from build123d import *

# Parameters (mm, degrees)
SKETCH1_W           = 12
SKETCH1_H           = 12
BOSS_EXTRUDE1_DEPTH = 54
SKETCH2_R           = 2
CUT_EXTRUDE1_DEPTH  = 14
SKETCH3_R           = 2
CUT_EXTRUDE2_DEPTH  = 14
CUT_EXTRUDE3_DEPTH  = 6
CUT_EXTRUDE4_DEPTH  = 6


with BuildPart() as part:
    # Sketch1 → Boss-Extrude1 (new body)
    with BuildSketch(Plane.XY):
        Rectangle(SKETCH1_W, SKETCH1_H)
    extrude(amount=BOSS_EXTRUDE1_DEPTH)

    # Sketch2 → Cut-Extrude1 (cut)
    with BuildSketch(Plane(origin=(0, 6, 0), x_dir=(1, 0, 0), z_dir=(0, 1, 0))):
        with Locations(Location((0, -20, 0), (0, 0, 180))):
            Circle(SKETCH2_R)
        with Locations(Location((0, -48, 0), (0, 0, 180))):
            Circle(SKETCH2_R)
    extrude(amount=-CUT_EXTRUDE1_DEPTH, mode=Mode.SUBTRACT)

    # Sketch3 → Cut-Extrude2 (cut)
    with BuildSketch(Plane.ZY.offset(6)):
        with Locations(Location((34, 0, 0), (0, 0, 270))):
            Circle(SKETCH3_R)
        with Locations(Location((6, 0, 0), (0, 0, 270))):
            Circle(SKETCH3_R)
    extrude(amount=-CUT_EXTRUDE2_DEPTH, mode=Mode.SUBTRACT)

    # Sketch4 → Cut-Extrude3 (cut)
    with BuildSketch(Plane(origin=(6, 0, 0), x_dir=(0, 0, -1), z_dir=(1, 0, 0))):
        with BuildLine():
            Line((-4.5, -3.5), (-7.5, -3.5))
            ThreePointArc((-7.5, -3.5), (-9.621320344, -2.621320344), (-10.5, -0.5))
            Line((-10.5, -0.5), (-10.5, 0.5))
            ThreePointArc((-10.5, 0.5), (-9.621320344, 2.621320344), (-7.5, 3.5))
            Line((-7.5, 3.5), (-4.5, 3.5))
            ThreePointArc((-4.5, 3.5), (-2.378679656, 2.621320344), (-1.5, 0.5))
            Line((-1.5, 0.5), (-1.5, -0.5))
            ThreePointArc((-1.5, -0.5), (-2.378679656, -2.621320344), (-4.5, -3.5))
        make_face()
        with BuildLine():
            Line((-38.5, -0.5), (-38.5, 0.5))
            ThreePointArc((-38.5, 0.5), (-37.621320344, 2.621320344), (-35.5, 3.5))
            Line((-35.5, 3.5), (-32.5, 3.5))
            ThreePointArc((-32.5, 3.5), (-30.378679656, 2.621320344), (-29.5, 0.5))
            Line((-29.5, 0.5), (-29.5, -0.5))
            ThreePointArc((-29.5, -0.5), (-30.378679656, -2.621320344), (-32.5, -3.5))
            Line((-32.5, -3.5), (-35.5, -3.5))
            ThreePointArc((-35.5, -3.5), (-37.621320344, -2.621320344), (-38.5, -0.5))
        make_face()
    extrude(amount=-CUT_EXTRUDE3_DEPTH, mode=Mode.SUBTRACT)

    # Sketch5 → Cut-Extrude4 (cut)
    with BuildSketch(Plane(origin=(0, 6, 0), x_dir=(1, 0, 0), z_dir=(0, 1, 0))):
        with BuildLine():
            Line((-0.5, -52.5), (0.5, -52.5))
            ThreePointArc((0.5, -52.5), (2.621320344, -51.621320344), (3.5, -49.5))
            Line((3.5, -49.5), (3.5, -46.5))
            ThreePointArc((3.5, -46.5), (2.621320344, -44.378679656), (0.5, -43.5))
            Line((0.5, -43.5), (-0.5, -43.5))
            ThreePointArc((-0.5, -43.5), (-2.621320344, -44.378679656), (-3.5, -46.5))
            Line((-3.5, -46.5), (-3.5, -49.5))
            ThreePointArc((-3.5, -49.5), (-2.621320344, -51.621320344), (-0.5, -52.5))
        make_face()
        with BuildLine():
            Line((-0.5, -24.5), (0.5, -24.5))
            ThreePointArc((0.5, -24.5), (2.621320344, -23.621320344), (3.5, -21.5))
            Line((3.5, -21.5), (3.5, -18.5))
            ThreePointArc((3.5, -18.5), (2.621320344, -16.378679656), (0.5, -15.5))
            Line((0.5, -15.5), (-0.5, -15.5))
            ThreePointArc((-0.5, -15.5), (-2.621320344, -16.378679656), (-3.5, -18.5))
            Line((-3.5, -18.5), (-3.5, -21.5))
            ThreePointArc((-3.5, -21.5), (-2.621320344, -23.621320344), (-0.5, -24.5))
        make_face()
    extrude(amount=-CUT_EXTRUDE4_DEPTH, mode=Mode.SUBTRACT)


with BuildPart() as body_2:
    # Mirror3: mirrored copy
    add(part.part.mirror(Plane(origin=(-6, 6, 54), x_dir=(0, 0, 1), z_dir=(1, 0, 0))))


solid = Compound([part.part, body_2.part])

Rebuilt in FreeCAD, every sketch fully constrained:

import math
import FreeCAD as App
import Part
import Sketcher
from FreeCAD import Vector
Q = App.Units.Quantity

doc = App.newDocument("Part")
params = doc.addObject("Spreadsheet::Sheet", "Params")
for row, (alias, value) in enumerate([
    ("sketch1_width", "12 mm"),
    ("pad1_length", "54 mm"),
    ("sketch2_diameter", "4 mm"),
    ("pocket1_length", "14 mm"),
    ("sketch3_diameter", "4 mm"),
    ("pocket2_length", "14 mm"),
    ("sketch4_radius", "3 mm"),
    ("sketch4_width", "1 mm"),
    ("sketch4_height", "3 mm"),
    ("pocket3_length", "6 mm"),
    ("sketch5_radius", "3 mm"),
    ("sketch5_width", "1 mm"),
    ("sketch5_height", "3 mm"),
    ("pocket4_length", "6 mm"),
], start=1):
    params.set(f"A{row}", alias)
    params.set(f"B{row}", "=" + value)
    params.setAlias(f"B{row}", alias)

body = doc.addObject("PartDesign::Body", "Body")

sketch1 = body.newObject("Sketcher::SketchObject", "Sketch")
sketch1.AttachmentSupport = (doc.getObject("XY_Plane"), [""])
sketch1.MapMode = "FlatFace"
sketch1.addGeometry([
    Part.LineSegment(Vector(-6, 6, 0), Vector(-6, -6, 0)),
    Part.LineSegment(Vector(-6, -6, 0), Vector(6, -6, 0)),
    Part.LineSegment(Vector(6, -6, 0), Vector(6, 6, 0)),
    Part.LineSegment(Vector(6, 6, 0), Vector(-6, 6, 0)),
], False)
sketch1.addConstraint([
    Sketcher.Constraint("Coincident", 0, 2, 1, 1),
    Sketcher.Constraint("Coincident", 1, 2, 2, 1),
    Sketcher.Constraint("Coincident", 2, 2, 3, 1),
    Sketcher.Constraint("Coincident", 3, 2, 0, 1),
    Sketcher.Constraint("Vertical", 0),
    Sketcher.Constraint("Horizontal", 1),
    Sketcher.Constraint("Vertical", 2),
    Sketcher.Constraint("Horizontal", 3),
    Sketcher.Constraint("Symmetric", 0, 2, 2, 2, -1, 1),
    Sketcher.Constraint("Equal", 3, 0),
    Sketcher.Constraint("DistanceX", 1, 1, 1, 2, Q("12 mm")),
])
sketch1.setExpression("Constraints[10]", "Params.sketch1_width")
pad1 = body.newObject("PartDesign::Pad", "Pad")
pad1.Profile = sketch1
pad1.setExpression("Length", "Params.pad1_length")

sketch2 = body.newObject("Sketcher::SketchObject", "Sketch001")
sketch2.AttachmentSupport = (doc.getObject("XZ_Plane"), [""])
sketch2.MapMode = "FlatFace"
sketch2.AttachmentOffset = App.Placement(Vector(0, 0, -6), App.Rotation())
sketch2.addGeometry([
    Part.Circle(Vector(0, 20, 0), Vector(0, 0, 1), 2),
    Part.Circle(Vector(0, 48, 0), Vector(0, 0, 1), 2),
], False)
sketch2.addConstraint([
    Sketcher.Constraint("Equal", 0, 1),
    Sketcher.Constraint("PointOnObject", 0, 3, -2),
    Sketcher.Constraint("PointOnObject", 1, 3, -2),
    Sketcher.Constraint("Diameter", 0, Q("4 mm")),
    Sketcher.Constraint("DistanceY", -1, 1, 0, 3, Q("20 mm")),
    Sketcher.Constraint("DistanceY", -1, 1, 1, 3, Q("48 mm")),
])
sketch2.setExpression("Constraints[3]", "Params.sketch2_diameter")
pocket1 = body.newObject("PartDesign::Pocket", "Pocket")
pocket1.Profile = sketch2
pocket1.setExpression("Length", "Params.pocket1_length")
pocket1.Reversed = True

sketch3 = body.newObject("Sketcher::SketchObject", "Sketch002")
sketch3.AttachmentSupport = (doc.getObject("YZ_Plane"), [""])
sketch3.MapMode = "FlatFace"
sketch3.AttachmentOffset = App.Placement(Vector(0, 0, -6), App.Rotation())
sketch3.addGeometry([
    Part.Circle(Vector(0, 34, 0), Vector(0, 0, 1), 2),
    Part.Circle(Vector(0, 6, 0), Vector(0, 0, 1), 2),
], False)
sketch3.addConstraint([
    Sketcher.Constraint("Equal", 0, 1),
    Sketcher.Constraint("PointOnObject", 0, 3, -2),
    Sketcher.Constraint("PointOnObject", 1, 3, -2),
    Sketcher.Constraint("Diameter", 0, Q("4 mm")),
    Sketcher.Constraint("DistanceY", -1, 1, 0, 3, Q("34 mm")),
    Sketcher.Constraint("DistanceY", -1, 1, 1, 3, Q("6 mm")),
])
sketch3.setExpression("Constraints[3]", "Params.sketch3_diameter")
pocket2 = body.newObject("PartDesign::Pocket", "Pocket001")
pocket2.Profile = sketch3
pocket2.setExpression("Length", "Params.pocket2_length")
pocket2.Reversed = True

sketch4 = body.newObject("Sketcher::SketchObject", "Sketch003")
sketch4.AttachmentSupport = (doc.getObject("YZ_Plane"), [""])
sketch4.MapMode = "FlatFace"
sketch4.AttachmentOffset = App.Placement(Vector(0, 0, 6), App.Rotation())
sketch4.addGeometry([
    Part.LineSegment(Vector(-3.5, 7.5, 0), Vector(-3.5, 4.5, 0)),
    Part.ArcOfCircle(Part.Circle(Vector(-0.5, 4.5, 0), Vector(0, 0, 1), 3), math.radians(180), math.radians(270)),
    Part.LineSegment(Vector(-0.5, 1.5, 0), Vector(0.5, 1.5, 0)),
    Part.ArcOfCircle(Part.Circle(Vector(0.5, 4.5, 0), Vector(0, 0, 1), 3), math.radians(-90), math.radians(0)),
    Part.LineSegment(Vector(3.5, 4.5, 0), Vector(3.5, 7.5, 0)),
    Part.ArcOfCircle(Part.Circle(Vector(0.5, 7.5, 0), Vector(0, 0, 1), 3), math.radians(0), math.radians(90)),
    Part.LineSegment(Vector(0.5, 10.5, 0), Vector(-0.5, 10.5, 0)),
    Part.ArcOfCircle(Part.Circle(Vector(-0.5, 7.5, 0), Vector(0, 0, 1), 3), math.radians(90), math.radians(180)),
    Part.LineSegment(Vector(0.5, 38.5, 0), Vector(-0.5, 38.5, 0)),
    Part.ArcOfCircle(Part.Circle(Vector(-0.5, 35.5, 0), Vector(0, 0, 1), 3), math.radians(90), math.radians(180)),
    Part.LineSegment(Vector(-3.5, 35.5, 0), Vector(-3.5, 32.5, 0)),
    Part.ArcOfCircle(Part.Circle(Vector(-0.5, 32.5, 0), Vector(0, 0, 1), 3), math.radians(180), math.radians(270)),
    Part.LineSegment(Vector(-0.5, 29.5, 0), Vector(0.5, 29.5, 0)),
    Part.ArcOfCircle(Part.Circle(Vector(0.5, 32.5, 0), Vector(0, 0, 1), 3), math.radians(-90), math.radians(0)),
    Part.LineSegment(Vector(3.5, 32.5, 0), Vector(3.5, 35.5, 0)),
    Part.ArcOfCircle(Part.Circle(Vector(0.5, 35.5, 0), Vector(0, 0, 1), 3), math.radians(0), math.radians(90)),
], False)
sketch4.addConstraint([
    Sketcher.Constraint("Tangent", 0, 2, 1, 1),
    Sketcher.Constraint("Tangent", 1, 2, 2, 1),
    Sketcher.Constraint("Tangent", 2, 2, 3, 1),
    Sketcher.Constraint("Tangent", 3, 2, 4, 1),
    Sketcher.Constraint("Tangent", 4, 2, 5, 1),
    Sketcher.Constraint("Tangent", 5, 2, 6, 1),
    Sketcher.Constraint("Tangent", 6, 2, 7, 1),
    Sketcher.Constraint("Tangent", 7, 2, 0, 1),
    Sketcher.Constraint("Tangent", 8, 2, 9, 1),
    Sketcher.Constraint("Tangent", 9, 2, 10, 1),
    Sketcher.Constraint("Tangent", 10, 2, 11, 1),
    Sketcher.Constraint("Tangent", 11, 2, 12, 1),
    Sketcher.Constraint("Tangent", 12, 2, 13, 1),
    Sketcher.Constraint("Tangent", 13, 2, 14, 1),
    Sketcher.Constraint("Tangent", 14, 2, 15, 1),
    Sketcher.Constraint("Tangent", 15, 2, 8, 1),
    Sketcher.Constraint("Vertical", 0),
    Sketcher.Constraint("Horizontal", 2),
    Sketcher.Constraint("Vertical", 4),
    Sketcher.Constraint("Horizontal", 6),
    Sketcher.Constraint("Horizontal", 8),
    Sketcher.Constraint("Vertical", 10),
    Sketcher.Constraint("Horizontal", 12),
    Sketcher.Constraint("Vertical", 14),
    Sketcher.Constraint("Equal", 1, 3),
    Sketcher.Constraint("Equal", 3, 5),
    Sketcher.Constraint("Equal", 5, 7),
    Sketcher.Constraint("Equal", 7, 9),
    Sketcher.Constraint("Equal", 9, 11),
    Sketcher.Constraint("Equal", 11, 13),
    Sketcher.Constraint("Equal", 13, 15),
    Sketcher.Constraint("Vertical", 7, 3, 9, 3),
    Sketcher.Constraint("Vertical", 5, 3, 13, 3),
    Sketcher.Constraint("Equal", 4, 10),
    Sketcher.Constraint("Radius", 1, Q("3 mm")),
    Sketcher.Constraint("DistanceX", 2, 1, 2, 2, Q("1 mm")),
    Sketcher.Constraint("DistanceY", 0, 2, 0, 1, Q("3 mm")),
    Sketcher.Constraint("DistanceY", 7, 3, 9, 3, Q("28 mm")),
    Sketcher.Constraint("DistanceX", 1, 3, -1, 1, Q("0.5 mm")),
    Sketcher.Constraint("DistanceY", -1, 1, 1, 3, Q("4.5 mm")),
])
sketch4.setExpression("Constraints[34]", "Params.sketch4_radius")
sketch4.setExpression("Constraints[35]", "Params.sketch4_width")
sketch4.setExpression("Constraints[36]", "Params.sketch4_height")
pocket3 = body.newObject("PartDesign::Pocket", "Pocket002")
pocket3.Profile = sketch4
pocket3.setExpression("Length", "Params.pocket3_length")

sketch5 = body.newObject("Sketcher::SketchObject", "Sketch004")
sketch5.AttachmentSupport = (doc.getObject("XZ_Plane"), [""])
sketch5.MapMode = "FlatFace"
sketch5.AttachmentOffset = App.Placement(Vector(0, 0, -6), App.Rotation())
sketch5.addGeometry([
    Part.LineSegment(Vector(-0.5, 52.5, 0), Vector(0.5, 52.5, 0)),
    Part.ArcOfCircle(Part.Circle(Vector(0.5, 49.5, 0), Vector(0, 0, 1), 3), math.radians(0), math.radians(90)),
    Part.LineSegment(Vector(3.5, 49.5, 0), Vector(3.5, 46.5, 0)),
    Part.ArcOfCircle(Part.Circle(Vector(0.5, 46.5, 0), Vector(0, 0, 1), 3), math.radians(-90), math.radians(0)),
    Part.LineSegment(Vector(0.5, 43.5, 0), Vector(-0.5, 43.5, 0)),
    Part.ArcOfCircle(Part.Circle(Vector(-0.5, 46.5, 0), Vector(0, 0, 1), 3), math.radians(180), math.radians(270)),
    Part.LineSegment(Vector(-3.5, 46.5, 0), Vector(-3.5, 49.5, 0)),
    Part.ArcOfCircle(Part.Circle(Vector(-0.5, 49.5, 0), Vector(0, 0, 1), 3), math.radians(90), math.radians(180)),
    Part.LineSegment(Vector(-0.5, 24.5, 0), Vector(0.5, 24.5, 0)),
    Part.ArcOfCircle(Part.Circle(Vector(0.5, 21.5, 0), Vector(0, 0, 1), 3), math.radians(0), math.radians(90)),
    Part.LineSegment(Vector(3.5, 21.5, 0), Vector(3.5, 18.5, 0)),
    Part.ArcOfCircle(Part.Circle(Vector(0.5, 18.5, 0), Vector(0, 0, 1), 3), math.radians(-90), math.radians(0)),
    Part.LineSegment(Vector(0.5, 15.5, 0), Vector(-0.5, 15.5, 0)),
    Part.ArcOfCircle(Part.Circle(Vector(-0.5, 18.5, 0), Vector(0, 0, 1), 3), math.radians(180), math.radians(270)),
    Part.LineSegment(Vector(-3.5, 18.5, 0), Vector(-3.5, 21.5, 0)),
    Part.ArcOfCircle(Part.Circle(Vector(-0.5, 21.5, 0), Vector(0, 0, 1), 3), math.radians(90), math.radians(180)),
], False)
sketch5.addConstraint([
    Sketcher.Constraint("Tangent", 0, 2, 1, 2),
    Sketcher.Constraint("Tangent", 1, 1, 2, 1),
    Sketcher.Constraint("Tangent", 2, 2, 3, 2),
    Sketcher.Constraint("Tangent", 3, 1, 4, 1),
    Sketcher.Constraint("Tangent", 4, 2, 5, 2),
    Sketcher.Constraint("Tangent", 5, 1, 6, 1),
    Sketcher.Constraint("Tangent", 6, 2, 7, 2),
    Sketcher.Constraint("Tangent", 7, 1, 0, 1),
    Sketcher.Constraint("Tangent", 8, 2, 9, 2),
    Sketcher.Constraint("Tangent", 9, 1, 10, 1),
    Sketcher.Constraint("Tangent", 10, 2, 11, 2),
    Sketcher.Constraint("Tangent", 11, 1, 12, 1),
    Sketcher.Constraint("Tangent", 12, 2, 13, 2),
    Sketcher.Constraint("Tangent", 13, 1, 14, 1),
    Sketcher.Constraint("Tangent", 14, 2, 15, 2),
    Sketcher.Constraint("Tangent", 15, 1, 8, 1),
    Sketcher.Constraint("Horizontal", 0),
    Sketcher.Constraint("Vertical", 2),
    Sketcher.Constraint("Horizontal", 4),
    Sketcher.Constraint("Vertical", 6),
    Sketcher.Constraint("Horizontal", 8),
    Sketcher.Constraint("Vertical", 10),
    Sketcher.Constraint("Horizontal", 12),
    Sketcher.Constraint("Vertical", 14),
    Sketcher.Constraint("Equal", 1, 3),
    Sketcher.Constraint("Equal", 3, 5),
    Sketcher.Constraint("Equal", 5, 7),
    Sketcher.Constraint("Equal", 7, 9),
    Sketcher.Constraint("Equal", 9, 11),
    Sketcher.Constraint("Equal", 11, 13),
    Sketcher.Constraint("Equal", 13, 15),
    Sketcher.Constraint("Vertical", 3, 3, 9, 3),
    Sketcher.Constraint("Vertical", 7, 3, 13, 3),
    Sketcher.Constraint("Equal", 6, 10),
    Sketcher.Constraint("Radius", 1, Q("3 mm")),
    Sketcher.Constraint("DistanceX", 0, 1, 0, 2, Q("1 mm")),
    Sketcher.Constraint("DistanceY", 2, 2, 2, 1, Q("3 mm")),
    Sketcher.Constraint("DistanceY", 9, 3, 3, 3, Q("25 mm")),
    Sketcher.Constraint("DistanceX", -1, 1, 1, 3, Q("0.5 mm")),
    Sketcher.Constraint("DistanceY", -1, 1, 1, 3, Q("49.5 mm")),
])
sketch5.setExpression("Constraints[34]", "Params.sketch5_radius")
sketch5.setExpression("Constraints[35]", "Params.sketch5_width")
sketch5.setExpression("Constraints[36]", "Params.sketch5_height")
pocket4 = body.newObject("PartDesign::Pocket", "Pocket003")
pocket4.Profile = sketch5
pocket4.setExpression("Length", "Params.pocket4_length")
pocket4.Reversed = True
body2 = doc.addObject("PartDesign::Body", "Body001")
doc.recompute()

mirroring = doc.addObject("Part::Mirroring", "Mirroring")
mirroring.Source = body
mirroring.Base = Vector(-6, 6, 54)
mirroring.Normal = Vector(1, 0, 0)
body2.BaseFeature = mirroring
doc.recompute()
mirroring.Visibility = False

doc.recompute()
